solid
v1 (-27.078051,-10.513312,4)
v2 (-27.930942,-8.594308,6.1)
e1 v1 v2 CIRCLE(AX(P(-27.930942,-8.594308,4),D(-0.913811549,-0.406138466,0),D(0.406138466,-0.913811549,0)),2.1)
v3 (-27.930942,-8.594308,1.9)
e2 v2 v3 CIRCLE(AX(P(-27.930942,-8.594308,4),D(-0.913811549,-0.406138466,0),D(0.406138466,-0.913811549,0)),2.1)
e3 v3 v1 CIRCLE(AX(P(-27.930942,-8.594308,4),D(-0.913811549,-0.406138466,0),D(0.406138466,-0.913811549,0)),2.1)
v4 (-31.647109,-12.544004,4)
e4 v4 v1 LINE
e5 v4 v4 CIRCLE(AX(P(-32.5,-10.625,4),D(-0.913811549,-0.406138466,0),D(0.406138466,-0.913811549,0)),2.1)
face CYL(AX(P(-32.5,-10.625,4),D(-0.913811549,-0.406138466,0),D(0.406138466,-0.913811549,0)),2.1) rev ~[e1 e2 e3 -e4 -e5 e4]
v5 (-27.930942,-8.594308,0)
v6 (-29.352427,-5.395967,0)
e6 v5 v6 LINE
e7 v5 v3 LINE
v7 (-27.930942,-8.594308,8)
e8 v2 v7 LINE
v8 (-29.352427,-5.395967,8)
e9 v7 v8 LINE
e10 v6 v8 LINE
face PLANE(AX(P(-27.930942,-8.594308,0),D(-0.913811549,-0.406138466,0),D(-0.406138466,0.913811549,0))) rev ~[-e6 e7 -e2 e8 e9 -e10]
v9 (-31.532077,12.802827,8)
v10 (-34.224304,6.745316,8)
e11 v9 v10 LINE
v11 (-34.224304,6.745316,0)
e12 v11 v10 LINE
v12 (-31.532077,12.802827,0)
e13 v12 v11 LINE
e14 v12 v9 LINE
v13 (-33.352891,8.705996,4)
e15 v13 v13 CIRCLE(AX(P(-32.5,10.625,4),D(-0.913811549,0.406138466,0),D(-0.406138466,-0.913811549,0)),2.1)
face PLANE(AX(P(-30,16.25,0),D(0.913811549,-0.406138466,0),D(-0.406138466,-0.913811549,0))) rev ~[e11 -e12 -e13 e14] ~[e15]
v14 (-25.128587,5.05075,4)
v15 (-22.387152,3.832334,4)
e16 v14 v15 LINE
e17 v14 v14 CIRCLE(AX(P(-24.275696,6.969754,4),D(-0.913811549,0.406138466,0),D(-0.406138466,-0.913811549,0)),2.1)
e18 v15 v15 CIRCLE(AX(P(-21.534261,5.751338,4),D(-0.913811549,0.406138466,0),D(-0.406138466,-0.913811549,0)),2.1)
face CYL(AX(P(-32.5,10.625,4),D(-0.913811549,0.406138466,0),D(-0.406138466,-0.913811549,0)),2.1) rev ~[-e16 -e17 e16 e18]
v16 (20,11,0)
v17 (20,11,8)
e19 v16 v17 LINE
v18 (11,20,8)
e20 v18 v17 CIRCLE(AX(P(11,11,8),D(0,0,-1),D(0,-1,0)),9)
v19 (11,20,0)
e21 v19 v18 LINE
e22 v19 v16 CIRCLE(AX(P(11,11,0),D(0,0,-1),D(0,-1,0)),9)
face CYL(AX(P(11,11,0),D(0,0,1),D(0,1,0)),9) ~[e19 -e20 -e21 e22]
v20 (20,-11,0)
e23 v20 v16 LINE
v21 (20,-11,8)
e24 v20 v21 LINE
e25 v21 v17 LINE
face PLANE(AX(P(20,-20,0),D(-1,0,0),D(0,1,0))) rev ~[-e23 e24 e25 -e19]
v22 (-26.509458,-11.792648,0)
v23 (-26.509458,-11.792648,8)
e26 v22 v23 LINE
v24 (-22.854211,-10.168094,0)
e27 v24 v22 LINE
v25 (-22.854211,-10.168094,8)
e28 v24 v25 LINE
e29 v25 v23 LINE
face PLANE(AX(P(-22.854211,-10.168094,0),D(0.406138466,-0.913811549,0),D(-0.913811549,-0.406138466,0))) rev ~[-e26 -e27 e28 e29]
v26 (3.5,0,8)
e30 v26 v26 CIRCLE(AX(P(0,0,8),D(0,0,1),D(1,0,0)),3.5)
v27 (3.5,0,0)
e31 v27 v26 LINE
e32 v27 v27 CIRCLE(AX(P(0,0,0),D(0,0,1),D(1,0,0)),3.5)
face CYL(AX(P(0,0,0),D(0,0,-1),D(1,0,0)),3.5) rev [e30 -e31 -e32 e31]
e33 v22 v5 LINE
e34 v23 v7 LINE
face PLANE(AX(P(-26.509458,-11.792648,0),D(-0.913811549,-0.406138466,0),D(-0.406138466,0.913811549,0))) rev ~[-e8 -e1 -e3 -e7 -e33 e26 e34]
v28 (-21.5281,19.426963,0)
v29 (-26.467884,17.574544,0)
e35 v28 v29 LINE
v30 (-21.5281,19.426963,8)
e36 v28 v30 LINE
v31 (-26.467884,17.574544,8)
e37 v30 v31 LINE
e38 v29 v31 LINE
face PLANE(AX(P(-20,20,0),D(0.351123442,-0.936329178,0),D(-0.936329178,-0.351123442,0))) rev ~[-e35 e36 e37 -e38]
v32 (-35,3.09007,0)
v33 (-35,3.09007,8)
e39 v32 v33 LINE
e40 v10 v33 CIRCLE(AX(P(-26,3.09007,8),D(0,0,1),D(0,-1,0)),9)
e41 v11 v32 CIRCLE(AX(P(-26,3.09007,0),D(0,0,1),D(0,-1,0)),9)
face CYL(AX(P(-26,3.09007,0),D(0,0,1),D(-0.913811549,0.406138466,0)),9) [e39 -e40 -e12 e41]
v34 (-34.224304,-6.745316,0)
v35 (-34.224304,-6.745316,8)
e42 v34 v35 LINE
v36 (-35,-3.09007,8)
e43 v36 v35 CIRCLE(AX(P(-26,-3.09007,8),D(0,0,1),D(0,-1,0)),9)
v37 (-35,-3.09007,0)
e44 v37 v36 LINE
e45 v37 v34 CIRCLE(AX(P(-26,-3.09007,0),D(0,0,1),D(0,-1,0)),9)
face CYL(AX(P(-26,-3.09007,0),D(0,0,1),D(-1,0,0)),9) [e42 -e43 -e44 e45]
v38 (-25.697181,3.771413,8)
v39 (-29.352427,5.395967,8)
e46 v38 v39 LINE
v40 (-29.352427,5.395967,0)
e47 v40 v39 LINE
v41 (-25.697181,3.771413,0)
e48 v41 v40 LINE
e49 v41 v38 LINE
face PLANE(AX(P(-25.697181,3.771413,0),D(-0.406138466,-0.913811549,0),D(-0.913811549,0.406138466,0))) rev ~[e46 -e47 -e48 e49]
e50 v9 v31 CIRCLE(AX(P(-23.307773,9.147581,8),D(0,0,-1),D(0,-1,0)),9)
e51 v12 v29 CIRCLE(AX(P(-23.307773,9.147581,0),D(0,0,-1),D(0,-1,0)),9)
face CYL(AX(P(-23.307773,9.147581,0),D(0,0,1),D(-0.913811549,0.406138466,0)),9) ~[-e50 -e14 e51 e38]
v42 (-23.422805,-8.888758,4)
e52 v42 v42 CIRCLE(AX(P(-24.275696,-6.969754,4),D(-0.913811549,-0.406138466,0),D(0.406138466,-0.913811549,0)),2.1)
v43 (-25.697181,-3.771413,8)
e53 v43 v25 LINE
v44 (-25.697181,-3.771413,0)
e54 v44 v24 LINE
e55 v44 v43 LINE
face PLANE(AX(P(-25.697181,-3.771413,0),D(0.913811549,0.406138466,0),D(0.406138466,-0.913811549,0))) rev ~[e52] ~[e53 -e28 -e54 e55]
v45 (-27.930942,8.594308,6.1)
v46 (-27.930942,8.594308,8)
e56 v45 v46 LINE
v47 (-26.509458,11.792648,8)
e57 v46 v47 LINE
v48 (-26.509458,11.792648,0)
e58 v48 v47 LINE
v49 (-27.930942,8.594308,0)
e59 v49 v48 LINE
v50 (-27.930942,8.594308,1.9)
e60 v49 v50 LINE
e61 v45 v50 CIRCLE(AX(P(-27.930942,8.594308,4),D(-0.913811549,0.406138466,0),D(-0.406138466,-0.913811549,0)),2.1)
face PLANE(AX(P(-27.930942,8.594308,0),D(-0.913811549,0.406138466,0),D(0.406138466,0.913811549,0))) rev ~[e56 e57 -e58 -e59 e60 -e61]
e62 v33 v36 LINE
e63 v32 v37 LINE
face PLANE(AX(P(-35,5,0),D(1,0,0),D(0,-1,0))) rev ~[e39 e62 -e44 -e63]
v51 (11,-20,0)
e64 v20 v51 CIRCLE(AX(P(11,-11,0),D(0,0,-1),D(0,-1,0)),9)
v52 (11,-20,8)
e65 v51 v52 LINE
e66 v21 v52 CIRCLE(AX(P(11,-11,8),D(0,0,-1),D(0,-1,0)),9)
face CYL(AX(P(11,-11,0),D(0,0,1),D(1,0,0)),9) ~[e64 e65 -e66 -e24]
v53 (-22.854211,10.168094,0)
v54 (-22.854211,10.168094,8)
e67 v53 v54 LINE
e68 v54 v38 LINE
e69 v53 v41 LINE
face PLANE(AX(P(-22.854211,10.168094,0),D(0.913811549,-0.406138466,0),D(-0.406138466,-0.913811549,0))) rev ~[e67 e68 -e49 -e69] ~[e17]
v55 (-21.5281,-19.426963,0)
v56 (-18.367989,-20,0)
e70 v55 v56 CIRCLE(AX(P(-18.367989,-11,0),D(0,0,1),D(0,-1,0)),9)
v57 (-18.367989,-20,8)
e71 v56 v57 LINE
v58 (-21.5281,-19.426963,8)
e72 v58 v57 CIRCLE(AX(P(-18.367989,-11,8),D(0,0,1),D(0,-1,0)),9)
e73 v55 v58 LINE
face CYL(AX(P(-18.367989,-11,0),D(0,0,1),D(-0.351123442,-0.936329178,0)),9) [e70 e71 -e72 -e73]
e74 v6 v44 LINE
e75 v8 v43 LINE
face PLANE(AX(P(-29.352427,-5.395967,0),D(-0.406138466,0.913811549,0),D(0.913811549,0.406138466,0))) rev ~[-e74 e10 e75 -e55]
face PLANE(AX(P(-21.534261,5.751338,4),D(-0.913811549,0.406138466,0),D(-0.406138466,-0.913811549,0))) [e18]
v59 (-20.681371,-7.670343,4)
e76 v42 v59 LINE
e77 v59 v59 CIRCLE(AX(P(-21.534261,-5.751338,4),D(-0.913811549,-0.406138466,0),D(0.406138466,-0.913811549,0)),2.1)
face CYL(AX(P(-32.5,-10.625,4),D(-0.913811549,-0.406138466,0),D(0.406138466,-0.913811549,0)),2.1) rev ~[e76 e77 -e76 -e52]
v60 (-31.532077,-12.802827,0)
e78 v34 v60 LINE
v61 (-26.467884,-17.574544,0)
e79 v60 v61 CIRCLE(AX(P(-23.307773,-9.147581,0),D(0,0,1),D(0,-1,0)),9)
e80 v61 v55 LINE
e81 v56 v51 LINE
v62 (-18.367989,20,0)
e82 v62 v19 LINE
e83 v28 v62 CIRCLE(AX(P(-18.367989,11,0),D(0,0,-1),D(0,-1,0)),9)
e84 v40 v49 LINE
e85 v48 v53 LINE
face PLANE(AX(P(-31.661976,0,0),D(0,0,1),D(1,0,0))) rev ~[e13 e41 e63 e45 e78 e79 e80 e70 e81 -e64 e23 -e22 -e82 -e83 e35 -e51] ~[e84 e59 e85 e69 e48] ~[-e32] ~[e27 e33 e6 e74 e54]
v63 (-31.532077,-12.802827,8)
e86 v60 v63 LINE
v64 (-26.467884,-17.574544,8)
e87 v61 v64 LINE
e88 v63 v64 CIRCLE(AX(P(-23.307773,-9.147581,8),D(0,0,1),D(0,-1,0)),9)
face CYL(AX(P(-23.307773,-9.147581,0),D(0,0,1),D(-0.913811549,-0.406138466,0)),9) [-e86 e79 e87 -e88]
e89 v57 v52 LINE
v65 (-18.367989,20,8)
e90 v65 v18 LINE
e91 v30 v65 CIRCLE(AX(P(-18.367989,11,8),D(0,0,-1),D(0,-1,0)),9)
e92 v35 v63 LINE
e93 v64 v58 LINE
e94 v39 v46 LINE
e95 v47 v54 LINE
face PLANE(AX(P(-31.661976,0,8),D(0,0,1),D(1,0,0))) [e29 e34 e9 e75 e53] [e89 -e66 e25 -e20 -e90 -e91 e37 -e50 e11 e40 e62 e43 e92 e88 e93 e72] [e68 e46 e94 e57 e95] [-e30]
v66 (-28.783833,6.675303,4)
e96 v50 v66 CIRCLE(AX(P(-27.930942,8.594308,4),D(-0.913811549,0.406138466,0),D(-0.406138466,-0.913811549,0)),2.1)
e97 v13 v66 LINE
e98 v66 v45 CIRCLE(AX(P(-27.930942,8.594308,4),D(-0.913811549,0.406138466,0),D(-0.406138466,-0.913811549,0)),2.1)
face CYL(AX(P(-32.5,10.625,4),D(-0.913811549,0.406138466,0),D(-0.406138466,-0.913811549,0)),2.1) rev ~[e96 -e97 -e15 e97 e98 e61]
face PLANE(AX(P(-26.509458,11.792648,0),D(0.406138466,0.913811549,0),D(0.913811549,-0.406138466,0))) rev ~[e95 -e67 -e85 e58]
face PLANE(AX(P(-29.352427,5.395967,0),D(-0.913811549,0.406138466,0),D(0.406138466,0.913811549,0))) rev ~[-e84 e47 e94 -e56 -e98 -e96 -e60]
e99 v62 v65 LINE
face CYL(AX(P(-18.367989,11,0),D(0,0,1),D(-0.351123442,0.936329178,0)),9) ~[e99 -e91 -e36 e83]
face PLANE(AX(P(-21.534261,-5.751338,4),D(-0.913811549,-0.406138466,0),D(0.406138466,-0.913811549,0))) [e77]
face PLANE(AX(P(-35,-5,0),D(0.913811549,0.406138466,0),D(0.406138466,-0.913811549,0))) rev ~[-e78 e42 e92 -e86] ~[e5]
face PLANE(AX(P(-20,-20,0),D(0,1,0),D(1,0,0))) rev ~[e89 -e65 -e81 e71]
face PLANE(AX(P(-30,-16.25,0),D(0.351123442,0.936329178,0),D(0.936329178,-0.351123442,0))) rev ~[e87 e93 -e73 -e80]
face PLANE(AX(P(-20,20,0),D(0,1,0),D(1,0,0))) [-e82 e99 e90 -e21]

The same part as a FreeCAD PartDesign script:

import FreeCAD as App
import Part
import Sketcher

V = App.Vector


def edges_at(feature, points):
    """Names of the edges that pass closest to the given points."""
    edges = feature.Shape.Edges
    near = lambda p: min(range(len(edges)), key=lambda i: edges[i].distToShape(Part.Vertex(*p))[0])
    return sorted({f"Edge{near(p) + 1}" for p in points})


def add_polygon(sketch, points):
    """Adds a closed chain of lines whose ends are joined by coincident constraints."""
    first, n = sketch.GeometryCount, len(points)
    for a, b in zip(points, points[1:] + points[:1]):
        sketch.addGeometry(Part.LineSegment(App.Vector(*a, 0), App.Vector(*b, 0)), False)
    for i in range(n):
        sketch.addConstraint(Sketcher.Constraint("Coincident", first + i, 2, first + (i + 1) % n, 1))

doc = App.newDocument("Part")
body = doc.addObject("PartDesign::Body", "Body")

sketch1 = doc.addObject("Sketcher::SketchObject", "Sketch")
body.addObject(sketch1)
sketch1.AttachmentSupport = (doc.XY_Plane, [""])
sketch1.MapMode = "FlatFace"
add_polygon(sketch1, [(-30, 16.25), (-35, 5), (-35, -5), (-30, -16.25), (-20, -20), (20, -20), (20, 20), (-20, 20)])
add_polygon(sketch1, [(-22.854211, -10.168094), (-26.509458, -11.792648), (-27.930942, -8.594308), (-29.352427, -5.395967), (-25.697181, -3.771413)])
sketch1.addGeometry(Part.Circle(V(0, 0, 0), V(0, 0, 1), 3.5), False)
add_polygon(sketch1, [(-25.697181, 3.771413), (-29.352427, 5.395967), (-27.930942, 8.594308), (-26.509458, 11.792648), (-22.854211, 10.168094)])
sketch1.addConstraint([
    Sketcher.Constraint("Vertical", 1),
    Sketcher.Constraint("Horizontal", 4),
    Sketcher.Constraint("Vertical", 5),
    Sketcher.Constraint("Horizontal", 6),
    Sketcher.Constraint("Coincident", 13, 3, -1, 1),
    Sketcher.Constraint("Symmetric", 3, 2, 5, 2, -1, 1),
    Sketcher.Constraint("Symmetric", 2, 2, 7, 2, -1),
    Sketcher.Constraint("Symmetric", 10, 2, 14, 2, -1),
    Sketcher.Constraint("Symmetric", 9, 2, 15, 2, -1),
    Sketcher.Constraint("Symmetric", 8, 2, 16, 2, -1),
    Sketcher.Constraint("Symmetric", 12, 2, 17, 2, -1),
    Sketcher.Constraint("Symmetric", 11, 2, 18, 2, -1),
    Sketcher.Constraint("Perpendicular", 2, 8),
    Sketcher.Constraint("Perpendicular", 8, 9),
    Sketcher.Constraint("Parallel", 9, 10),
    Sketcher.Constraint("Perpendicular", 10, 11),
    Sketcher.Constraint("Perpendicular", 11, 12),
    Sketcher.Constraint("Perpendicular", 0, 14),
    Sketcher.Constraint("Vertical", 3, 2, 6, 2),
    Sketcher.Constraint("Equal", 6, 5),
    Sketcher.Constraint("Equal", 9, 10),
    Sketcher.Constraint("Diameter", 13, 7.0),
    Sketcher.Constraint("DistanceX", 4, 1, 4, 2, 40.0),
    Sketcher.Constraint("DistanceY", 1, 2, 1, 1, 10.0),
    Sketcher.Constraint("Distance", 8, 4.0),
    Sketcher.Constraint("Distance", 12, 7.0),
    Sketcher.Constraint("DistanceX", 0, 2, -1, 1, 35.0),
    Sketcher.Constraint("DistanceX", 2, 2, -1, 1, 30.0),
    Sketcher.Constraint("DistanceY", 2, 2, 7, 2, 32.5),
    Sketcher.Constraint("DistanceY", 8, 2, -1, 1, 11.792648),
    Sketcher.Constraint("DistanceX", 11, 2, -1, 1, 25.697181),
])
pad1 = doc.addObject("PartDesign::Pad", "Pad")
body.addObject(pad1)
pad1.Profile = sketch1
pad1.Length = 8

sketch2 = doc.addObject("Sketcher::SketchObject", "Sketch001")
body.addObject(sketch2)
sketch2.Placement = App.Placement(V(-31.082474, 13.814433, 0), App.Rotation(V(-0.406138466, -0.913811549, 0), V(0, 0, 1.000000001), V(-0.913811549, 0.406138466, 0), "ZXY"))
sketch2.addGeometry(Part.Circle(V(3.490252, 4, 0), V(0, 0, 1), 2.1), False)
sketch2.addConstraint([
    Sketcher.Constraint("Diameter", 0, 4.2),
    Sketcher.Constraint("DistanceY", -1, 1, 0, 3, 4.0),
    Sketcher.Constraint("DistanceX", -1, 1, 0, 3, 3.490252),
])
pocket1 = doc.addObject("PartDesign::Pocket", "Pocket")
body.addObject(pocket1)
pocket1.Profile = sketch2
pocket1.Length = 12

sketch3 = doc.addObject("Sketcher::SketchObject", "Sketch002")
body.addObject(sketch3)
sketch3.Placement = App.Placement(V(-31.082474, -13.814433, 0), App.Rotation(V(0.406138466, -0.913811549, 0), V(0, 0, 1.000000001), V(-0.913811549, -0.406138466, 0), "ZXY"))
sketch3.addGeometry(Part.Circle(V(-3.490252, 4, 0), V(0, 0, 1), 2.1), False)
sketch3.addConstraint([
    Sketcher.Constraint("Diameter", 0, 4.2),
    Sketcher.Constraint("DistanceY", -1, 1, 0, 3, 4.0),
    Sketcher.Constraint("DistanceX", 0, 3, -1, 1, 3.490252),
])
pocket2 = doc.addObject("PartDesign::Pocket", "Pocket001")
body.addObject(pocket2)
pocket2.Profile = sketch3
pocket2.Length = 12
doc.recompute()

fillet = doc.addObject("PartDesign::Fillet", "Fillet")
body.addObject(fillet)
fillet.Base = (pocket2, edges_at(pocket2, [
    (20, -20, 4),
    (20, 20, 4),
    (-20, -20, 4),
    (-30, -16.25, 4),
    (-35, -5, 4),
    (-35, 5, 4),
    (-30, 16.25, 4),
    (-20, 20, 4),
]))
fillet.Radius = 9

doc.recompute()
